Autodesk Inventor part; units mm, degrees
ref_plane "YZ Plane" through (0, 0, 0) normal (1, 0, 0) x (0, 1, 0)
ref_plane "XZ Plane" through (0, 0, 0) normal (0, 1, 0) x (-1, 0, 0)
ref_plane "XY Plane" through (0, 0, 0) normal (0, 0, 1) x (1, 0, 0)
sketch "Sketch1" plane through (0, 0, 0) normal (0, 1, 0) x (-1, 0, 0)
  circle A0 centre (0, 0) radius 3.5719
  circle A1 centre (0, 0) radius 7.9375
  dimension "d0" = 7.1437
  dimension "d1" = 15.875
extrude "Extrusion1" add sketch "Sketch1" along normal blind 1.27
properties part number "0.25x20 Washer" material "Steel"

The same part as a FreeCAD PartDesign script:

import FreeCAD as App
import Part
import Sketcher

V = App.Vector
Q = App.Units.Quantity

doc = App.newDocument("Part")
body = doc.addObject("PartDesign::Body", "Body")

# Sketch on XZ plane
sketch1 = doc.addObject("Sketcher::SketchObject", "Sketch")
body.addObject(sketch1)
sketch1.AttachmentSupport = (doc.XZ_Plane, [""])
sketch1.MapMode = "FlatFace"
sketch1.addGeometry([
    Part.Circle(V(0, 0, 0), V(0, 0, 1), 7.9),
    Part.Circle(V(0, 0, 0), V(0, 0, 1), 3.6),
], False)
sketch1.addConstraint([
    Sketcher.Constraint("Coincident", 0, 3, -1, 1),
    Sketcher.Constraint("Coincident", 1, 3, -1, 1),
    Sketcher.Constraint("Diameter", 0, Q("0.625 in")),
    Sketcher.Constraint("Diameter", 1, Q("0.281252 in")),
])
pad1 = doc.addObject("PartDesign::Pad", "Pad")
body.addObject(pad1)
pad1.Profile = sketch1
pad1.Length = Q("0.05 in")
pad1.Reversed = True

doc.recompute()
